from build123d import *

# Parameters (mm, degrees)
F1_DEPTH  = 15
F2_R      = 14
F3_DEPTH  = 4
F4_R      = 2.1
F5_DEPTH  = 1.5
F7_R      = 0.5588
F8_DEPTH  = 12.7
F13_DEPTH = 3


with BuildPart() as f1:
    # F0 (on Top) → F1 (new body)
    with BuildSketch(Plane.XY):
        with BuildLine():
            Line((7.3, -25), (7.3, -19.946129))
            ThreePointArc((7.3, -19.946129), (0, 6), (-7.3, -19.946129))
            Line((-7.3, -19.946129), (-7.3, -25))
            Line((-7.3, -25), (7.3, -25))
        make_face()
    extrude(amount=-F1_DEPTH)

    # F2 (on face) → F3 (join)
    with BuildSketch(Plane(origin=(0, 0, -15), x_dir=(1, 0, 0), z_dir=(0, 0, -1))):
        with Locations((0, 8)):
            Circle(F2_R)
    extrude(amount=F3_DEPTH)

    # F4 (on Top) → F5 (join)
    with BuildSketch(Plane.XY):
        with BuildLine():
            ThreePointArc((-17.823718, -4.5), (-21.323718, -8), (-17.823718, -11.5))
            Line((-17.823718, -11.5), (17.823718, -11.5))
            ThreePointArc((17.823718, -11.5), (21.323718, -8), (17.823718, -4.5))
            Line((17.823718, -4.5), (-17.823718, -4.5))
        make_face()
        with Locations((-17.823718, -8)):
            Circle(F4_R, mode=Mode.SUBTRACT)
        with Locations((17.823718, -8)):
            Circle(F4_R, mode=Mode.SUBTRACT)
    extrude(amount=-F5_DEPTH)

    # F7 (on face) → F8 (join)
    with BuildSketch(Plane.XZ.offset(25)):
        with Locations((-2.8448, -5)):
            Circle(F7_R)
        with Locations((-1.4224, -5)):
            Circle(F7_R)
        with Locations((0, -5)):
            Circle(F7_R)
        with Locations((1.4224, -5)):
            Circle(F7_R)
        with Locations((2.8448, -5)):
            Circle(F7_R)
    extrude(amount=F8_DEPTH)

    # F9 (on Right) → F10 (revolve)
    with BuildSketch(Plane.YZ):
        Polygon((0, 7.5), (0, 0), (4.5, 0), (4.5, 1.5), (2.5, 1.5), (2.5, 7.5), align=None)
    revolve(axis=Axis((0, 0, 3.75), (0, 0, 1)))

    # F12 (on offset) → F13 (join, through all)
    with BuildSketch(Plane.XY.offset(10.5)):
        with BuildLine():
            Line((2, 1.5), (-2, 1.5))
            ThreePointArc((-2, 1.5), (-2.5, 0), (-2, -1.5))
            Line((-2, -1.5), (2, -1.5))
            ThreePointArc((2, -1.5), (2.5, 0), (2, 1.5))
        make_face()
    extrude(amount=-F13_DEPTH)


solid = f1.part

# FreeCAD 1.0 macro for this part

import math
import FreeCAD as App
import Part
import Sketcher


def add_polygon(sketch, points):
    """Adds a closed chain of lines whose ends are joined by coincident constraints."""
    first, n = sketch.GeometryCount, len(points)
    for a, b in zip(points, points[1:] + points[:1]):
        sketch.addGeometry(Part.LineSegment(App.Vector(*a, 0), App.Vector(*b, 0)), False)
    for i in range(n):
        sketch.addConstraint(Sketcher.Constraint("Coincident", first + i, 2, first + (i + 1) % n, 1))

doc = App.newDocument("Part")
body = doc.addObject("PartDesign::Body", "Body")

sketch1 = body.newObject("Sketcher::SketchObject", "Sketch")
sketch1.AttachmentSupport = (doc.getObject("XY_Plane"), [""])
sketch1.MapMode = "FlatFace"
sketch1.addGeometry([
    Part.LineSegment(App.Vector(7, -25, 0), App.Vector(7, -20, 0)),
    Part.ArcOfCircle(Part.Circle(App.Vector(0, -8, 0), App.Vector(0, 0, 1), 14), math.radians(-59), math.radians(239)),
    Part.LineSegment(App.Vector(-7, -20, 0), App.Vector(-7, -25, 0)),
    Part.LineSegment(App.Vector(-7, -25, 0), App.Vector(7, -25, 0)),
], False)
sketch1.addConstraint([
    Sketcher.Constraint("Coincident", 0, 2, 1, 1),
    Sketcher.Constraint("Coincident", 1, 2, 2, 1),
    Sketcher.Constraint("Coincident", 2, 2, 3, 1),
    Sketcher.Constraint("Coincident", 3, 2, 0, 1),
    Sketcher.Constraint("Vertical", 0),
    Sketcher.Constraint("Vertical", 2),
    Sketcher.Constraint("Horizontal", 3),
    Sketcher.Constraint("Symmetric", 0, 2, 1, 2, -2),
    Sketcher.Constraint("Radius", 1, 14.0),
    Sketcher.Constraint("DistanceX", 3, 1, 3, 2, 14.6),
    Sketcher.Constraint("DistanceY", 1, 3, -1, 1, 8.0),
    Sketcher.Constraint("DistanceY", 2, 2, -1, 1, 25.0),
])
pad1 = body.newObject("PartDesign::Pad", "Pad")
pad1.Profile = sketch1
pad1.Length = 15
pad1.Reversed = True

sketch2 = body.newObject("Sketcher::SketchObject", "Sketch001")
sketch2.AttachmentSupport = (doc.getObject("XY_Plane"), [""])
sketch2.MapMode = "FlatFace"
sketch2.AttachmentOffset = App.Placement(App.Vector(0, 0, -15), App.Rotation())
sketch2.addGeometry(Part.Circle(App.Vector(0, -8, 0), App.Vector(0, 0, 1), 14), False)
sketch2.addConstraint([
    Sketcher.Constraint("PointOnObject", 0, 3, -2),
    Sketcher.Constraint("Diameter", 0, 28.0),
    Sketcher.Constraint("DistanceY", 0, 3, -1, 1, 8.0),
])
pad2 = body.newObject("PartDesign::Pad", "Pad001")
pad2.Profile = sketch2
pad2.Length = 4
pad2.Reversed = True

sketch3 = body.newObject("Sketcher::SketchObject", "Sketch002")
sketch3.AttachmentSupport = (doc.getObject("XY_Plane"), [""])
sketch3.MapMode = "FlatFace"
sketch3.addGeometry([
    Part.ArcOfCircle(Part.Circle(App.Vector(-17.8, -8, 0), App.Vector(0, 0, 1), 3.5), math.radians(90), math.radians(270)),
    Part.LineSegment(App.Vector(-17.8, -11.5, 0), App.Vector(17.8, -11.5, 0)),
    Part.ArcOfCircle(Part.Circle(App.Vector(17.8, -8, 0), App.Vector(0, 0, 1), 3.5), math.radians(-90), math.radians(90)),
    Part.LineSegment(App.Vector(17.8, -4.5, 0), App.Vector(-17.8, -4.5, 0)),
    Part.Circle(App.Vector(-17.8, -8, 0), App.Vector(0, 0, 1), 2.1),
    Part.Circle(App.Vector(17.8, -8, 0), App.Vector(0, 0, 1), 2.1),
], False)
sketch3.addConstraint([
    Sketcher.Constraint("Tangent", 0, 2, 1, 1),
    Sketcher.Constraint("Tangent", 1, 2, 2, 1),
    Sketcher.Constraint("Tangent", 2, 2, 3, 1),
    Sketcher.Constraint("Tangent", 3, 2, 0, 1),
    Sketcher.Constraint("Horizontal", 1),
    Sketcher.Constraint("Horizontal", 3),
    Sketcher.Constraint("Coincident", 4, 3, 0, 3),
    Sketcher.Constraint("Coincident", 5, 3, 2, 3),
    Sketcher.Constraint("Equal", 4, 5),
    Sketcher.Constraint("Diameter", 4, 4.2),
    Sketcher.Constraint("Radius", 0, 3.5),
    Sketcher.Constraint("DistanceY", 0, 3, -1, 1, 8.0),
    Sketcher.Constraint("DistanceX", 1, 1, 1, 2, 35.647436),
    Sketcher.Constraint("DistanceX", 0, 3, -1, 1, 17.823718),
])
pad3 = body.newObject("PartDesign::Pad", "Pad002")
pad3.Profile = sketch3
pad3.Length = 1.5
pad3.Reversed = True

sketch4 = body.newObject("Sketcher::SketchObject", "Sketch003")
sketch4.AttachmentSupport = (doc.getObject("XZ_Plane"), [""])
sketch4.MapMode = "FlatFace"
sketch4.AttachmentOffset = App.Placement(App.Vector(0, 0, 25), App.Rotation())
sketch4.addGeometry([
    Part.Circle(App.Vector(-2.8, -5, 0), App.Vector(0, 0, 1), 0.6),
    Part.Circle(App.Vector(-1.4, -5, 0), App.Vector(0, 0, 1), 0.6),
    Part.Circle(App.Vector(0, -5, 0), App.Vector(0, 0, 1), 0.6),
    Part.Circle(App.Vector(1.4, -5, 0), App.Vector(0, 0, 1), 0.6),
    Part.Circle(App.Vector(2.8, -5, 0), App.Vector(0, 0, 1), 0.6),
], False)
sketch4.addConstraint([
    Sketcher.Constraint("Equal", 0, 1),
    Sketcher.Constraint("Equal", 1, 2),
    Sketcher.Constraint("Equal", 2, 3),
    Sketcher.Constraint("Equal", 3, 4),
    Sketcher.Constraint("Symmetric", 1, 3, 3, 3, -2),
    Sketcher.Constraint("Symmetric", 0, 3, 4, 3, -2),
    Sketcher.Constraint("PointOnObject", 2, 3, -2),
    Sketcher.Constraint("Horizontal", 0, 3, 1, 3),
    Sketcher.Constraint("Horizontal", 1, 3, 2, 3),
    Sketcher.Constraint("DistanceY", 0, 3, -1, 1, 5.0),
    Sketcher.Constraint("Diameter", 0, 1.1176),
    Sketcher.Constraint("DistanceX", 0, 3, -1, 1, 2.8448),
    Sketcher.Constraint("DistanceX", 1, 3, -1, 1, 1.4224),
])
pad4 = body.newObject("PartDesign::Pad", "Pad003")
pad4.Profile = sketch4
pad4.Length = 12.7

sketch5 = body.newObject("Sketcher::SketchObject", "Sketch004")
sketch5.AttachmentSupport = (doc.getObject("YZ_Plane"), [""])
sketch5.MapMode = "FlatFace"
add_polygon(sketch5, [(0, 7.5), (0, 0), (4.5, 0), (4.5, 1.5), (2.5, 1.5), (2.5, 7.5)])
sketch5.addConstraint([
    Sketcher.Constraint("Vertical", 0),
    Sketcher.Constraint("Horizontal", 1),
    Sketcher.Constraint("Vertical", 2),
    Sketcher.Constraint("Horizontal", 3),
    Sketcher.Constraint("Vertical", 4),
    Sketcher.Constraint("Horizontal", 5),
    Sketcher.Constraint("Coincident", 0, 2, -1, 1),
    Sketcher.Constraint("DistanceX", 3, 2, 3, 1, 2.0),
    Sketcher.Constraint("DistanceY", 4, 1, 4, 2, 6.0),
    Sketcher.Constraint("DistanceX", 1, 1, 1, 2, 4.5),
    Sketcher.Constraint("DistanceY", 0, 2, 0, 1, 7.5),
])
revolution = body.newObject("PartDesign::Revolution", "Revolution")
revolution.Profile = sketch5
revolution.ReferenceAxis = (sketch5, ["V_Axis"])
revolution.Angle = 360

sketch6 = body.newObject("Sketcher::SketchObject", "Sketch005")
sketch6.AttachmentSupport = (doc.getObject("XY_Plane"), [""])
sketch6.MapMode = "FlatFace"
sketch6.AttachmentOffset = App.Placement(App.Vector(0, 0, 10.5), App.Rotation())
sketch6.addGeometry([
    Part.LineSegment(App.Vector(2, 1.5, 0), App.Vector(-2, 1.5, 0)),
    Part.ArcOfCircle(Part.Circle(App.Vector(0, 0, 0), App.Vector(0, 0, 1), 2.5), math.radians(143), math.radians(217)),
    Part.LineSegment(App.Vector(-2, -1.5, 0), App.Vector(2, -1.5, 0)),
    Part.ArcOfCircle(Part.Circle(App.Vector(0, 0, 0), App.Vector(0, 0, 1), 2.5), math.radians(-37), math.radians(37)),
], False)
sketch6.addConstraint([
    Sketcher.Constraint("Coincident", 0, 2, 1, 1),
    Sketcher.Constraint("Coincident", 1, 2, 2, 1),
    Sketcher.Constraint("Coincident", 2, 2, 3, 1),
    Sketcher.Constraint("Coincident", 3, 2, 0, 1),
    Sketcher.Constraint("Horizontal", 0),
    Sketcher.Constraint("Horizontal", 2),
    Sketcher.Constraint("Coincident", 1, 3, -1, 1),
    Sketcher.Constraint("Coincident", 3, 3, -1, 1),
    Sketcher.Constraint("Equal", 1, 3),
    Sketcher.Constraint("Vertical", 0, 2, 1, 2),
    Sketcher.Constraint("Radius", 1, 2.5),
    Sketcher.Constraint("DistanceX", 0, 2, 0, 1, 4.0),
])
pad5 = body.newObject("PartDesign::Pad", "Pad004")
pad5.Profile = sketch6
pad5.Type = "UpToLast"
pad5.Reversed = True

doc.recompute()
